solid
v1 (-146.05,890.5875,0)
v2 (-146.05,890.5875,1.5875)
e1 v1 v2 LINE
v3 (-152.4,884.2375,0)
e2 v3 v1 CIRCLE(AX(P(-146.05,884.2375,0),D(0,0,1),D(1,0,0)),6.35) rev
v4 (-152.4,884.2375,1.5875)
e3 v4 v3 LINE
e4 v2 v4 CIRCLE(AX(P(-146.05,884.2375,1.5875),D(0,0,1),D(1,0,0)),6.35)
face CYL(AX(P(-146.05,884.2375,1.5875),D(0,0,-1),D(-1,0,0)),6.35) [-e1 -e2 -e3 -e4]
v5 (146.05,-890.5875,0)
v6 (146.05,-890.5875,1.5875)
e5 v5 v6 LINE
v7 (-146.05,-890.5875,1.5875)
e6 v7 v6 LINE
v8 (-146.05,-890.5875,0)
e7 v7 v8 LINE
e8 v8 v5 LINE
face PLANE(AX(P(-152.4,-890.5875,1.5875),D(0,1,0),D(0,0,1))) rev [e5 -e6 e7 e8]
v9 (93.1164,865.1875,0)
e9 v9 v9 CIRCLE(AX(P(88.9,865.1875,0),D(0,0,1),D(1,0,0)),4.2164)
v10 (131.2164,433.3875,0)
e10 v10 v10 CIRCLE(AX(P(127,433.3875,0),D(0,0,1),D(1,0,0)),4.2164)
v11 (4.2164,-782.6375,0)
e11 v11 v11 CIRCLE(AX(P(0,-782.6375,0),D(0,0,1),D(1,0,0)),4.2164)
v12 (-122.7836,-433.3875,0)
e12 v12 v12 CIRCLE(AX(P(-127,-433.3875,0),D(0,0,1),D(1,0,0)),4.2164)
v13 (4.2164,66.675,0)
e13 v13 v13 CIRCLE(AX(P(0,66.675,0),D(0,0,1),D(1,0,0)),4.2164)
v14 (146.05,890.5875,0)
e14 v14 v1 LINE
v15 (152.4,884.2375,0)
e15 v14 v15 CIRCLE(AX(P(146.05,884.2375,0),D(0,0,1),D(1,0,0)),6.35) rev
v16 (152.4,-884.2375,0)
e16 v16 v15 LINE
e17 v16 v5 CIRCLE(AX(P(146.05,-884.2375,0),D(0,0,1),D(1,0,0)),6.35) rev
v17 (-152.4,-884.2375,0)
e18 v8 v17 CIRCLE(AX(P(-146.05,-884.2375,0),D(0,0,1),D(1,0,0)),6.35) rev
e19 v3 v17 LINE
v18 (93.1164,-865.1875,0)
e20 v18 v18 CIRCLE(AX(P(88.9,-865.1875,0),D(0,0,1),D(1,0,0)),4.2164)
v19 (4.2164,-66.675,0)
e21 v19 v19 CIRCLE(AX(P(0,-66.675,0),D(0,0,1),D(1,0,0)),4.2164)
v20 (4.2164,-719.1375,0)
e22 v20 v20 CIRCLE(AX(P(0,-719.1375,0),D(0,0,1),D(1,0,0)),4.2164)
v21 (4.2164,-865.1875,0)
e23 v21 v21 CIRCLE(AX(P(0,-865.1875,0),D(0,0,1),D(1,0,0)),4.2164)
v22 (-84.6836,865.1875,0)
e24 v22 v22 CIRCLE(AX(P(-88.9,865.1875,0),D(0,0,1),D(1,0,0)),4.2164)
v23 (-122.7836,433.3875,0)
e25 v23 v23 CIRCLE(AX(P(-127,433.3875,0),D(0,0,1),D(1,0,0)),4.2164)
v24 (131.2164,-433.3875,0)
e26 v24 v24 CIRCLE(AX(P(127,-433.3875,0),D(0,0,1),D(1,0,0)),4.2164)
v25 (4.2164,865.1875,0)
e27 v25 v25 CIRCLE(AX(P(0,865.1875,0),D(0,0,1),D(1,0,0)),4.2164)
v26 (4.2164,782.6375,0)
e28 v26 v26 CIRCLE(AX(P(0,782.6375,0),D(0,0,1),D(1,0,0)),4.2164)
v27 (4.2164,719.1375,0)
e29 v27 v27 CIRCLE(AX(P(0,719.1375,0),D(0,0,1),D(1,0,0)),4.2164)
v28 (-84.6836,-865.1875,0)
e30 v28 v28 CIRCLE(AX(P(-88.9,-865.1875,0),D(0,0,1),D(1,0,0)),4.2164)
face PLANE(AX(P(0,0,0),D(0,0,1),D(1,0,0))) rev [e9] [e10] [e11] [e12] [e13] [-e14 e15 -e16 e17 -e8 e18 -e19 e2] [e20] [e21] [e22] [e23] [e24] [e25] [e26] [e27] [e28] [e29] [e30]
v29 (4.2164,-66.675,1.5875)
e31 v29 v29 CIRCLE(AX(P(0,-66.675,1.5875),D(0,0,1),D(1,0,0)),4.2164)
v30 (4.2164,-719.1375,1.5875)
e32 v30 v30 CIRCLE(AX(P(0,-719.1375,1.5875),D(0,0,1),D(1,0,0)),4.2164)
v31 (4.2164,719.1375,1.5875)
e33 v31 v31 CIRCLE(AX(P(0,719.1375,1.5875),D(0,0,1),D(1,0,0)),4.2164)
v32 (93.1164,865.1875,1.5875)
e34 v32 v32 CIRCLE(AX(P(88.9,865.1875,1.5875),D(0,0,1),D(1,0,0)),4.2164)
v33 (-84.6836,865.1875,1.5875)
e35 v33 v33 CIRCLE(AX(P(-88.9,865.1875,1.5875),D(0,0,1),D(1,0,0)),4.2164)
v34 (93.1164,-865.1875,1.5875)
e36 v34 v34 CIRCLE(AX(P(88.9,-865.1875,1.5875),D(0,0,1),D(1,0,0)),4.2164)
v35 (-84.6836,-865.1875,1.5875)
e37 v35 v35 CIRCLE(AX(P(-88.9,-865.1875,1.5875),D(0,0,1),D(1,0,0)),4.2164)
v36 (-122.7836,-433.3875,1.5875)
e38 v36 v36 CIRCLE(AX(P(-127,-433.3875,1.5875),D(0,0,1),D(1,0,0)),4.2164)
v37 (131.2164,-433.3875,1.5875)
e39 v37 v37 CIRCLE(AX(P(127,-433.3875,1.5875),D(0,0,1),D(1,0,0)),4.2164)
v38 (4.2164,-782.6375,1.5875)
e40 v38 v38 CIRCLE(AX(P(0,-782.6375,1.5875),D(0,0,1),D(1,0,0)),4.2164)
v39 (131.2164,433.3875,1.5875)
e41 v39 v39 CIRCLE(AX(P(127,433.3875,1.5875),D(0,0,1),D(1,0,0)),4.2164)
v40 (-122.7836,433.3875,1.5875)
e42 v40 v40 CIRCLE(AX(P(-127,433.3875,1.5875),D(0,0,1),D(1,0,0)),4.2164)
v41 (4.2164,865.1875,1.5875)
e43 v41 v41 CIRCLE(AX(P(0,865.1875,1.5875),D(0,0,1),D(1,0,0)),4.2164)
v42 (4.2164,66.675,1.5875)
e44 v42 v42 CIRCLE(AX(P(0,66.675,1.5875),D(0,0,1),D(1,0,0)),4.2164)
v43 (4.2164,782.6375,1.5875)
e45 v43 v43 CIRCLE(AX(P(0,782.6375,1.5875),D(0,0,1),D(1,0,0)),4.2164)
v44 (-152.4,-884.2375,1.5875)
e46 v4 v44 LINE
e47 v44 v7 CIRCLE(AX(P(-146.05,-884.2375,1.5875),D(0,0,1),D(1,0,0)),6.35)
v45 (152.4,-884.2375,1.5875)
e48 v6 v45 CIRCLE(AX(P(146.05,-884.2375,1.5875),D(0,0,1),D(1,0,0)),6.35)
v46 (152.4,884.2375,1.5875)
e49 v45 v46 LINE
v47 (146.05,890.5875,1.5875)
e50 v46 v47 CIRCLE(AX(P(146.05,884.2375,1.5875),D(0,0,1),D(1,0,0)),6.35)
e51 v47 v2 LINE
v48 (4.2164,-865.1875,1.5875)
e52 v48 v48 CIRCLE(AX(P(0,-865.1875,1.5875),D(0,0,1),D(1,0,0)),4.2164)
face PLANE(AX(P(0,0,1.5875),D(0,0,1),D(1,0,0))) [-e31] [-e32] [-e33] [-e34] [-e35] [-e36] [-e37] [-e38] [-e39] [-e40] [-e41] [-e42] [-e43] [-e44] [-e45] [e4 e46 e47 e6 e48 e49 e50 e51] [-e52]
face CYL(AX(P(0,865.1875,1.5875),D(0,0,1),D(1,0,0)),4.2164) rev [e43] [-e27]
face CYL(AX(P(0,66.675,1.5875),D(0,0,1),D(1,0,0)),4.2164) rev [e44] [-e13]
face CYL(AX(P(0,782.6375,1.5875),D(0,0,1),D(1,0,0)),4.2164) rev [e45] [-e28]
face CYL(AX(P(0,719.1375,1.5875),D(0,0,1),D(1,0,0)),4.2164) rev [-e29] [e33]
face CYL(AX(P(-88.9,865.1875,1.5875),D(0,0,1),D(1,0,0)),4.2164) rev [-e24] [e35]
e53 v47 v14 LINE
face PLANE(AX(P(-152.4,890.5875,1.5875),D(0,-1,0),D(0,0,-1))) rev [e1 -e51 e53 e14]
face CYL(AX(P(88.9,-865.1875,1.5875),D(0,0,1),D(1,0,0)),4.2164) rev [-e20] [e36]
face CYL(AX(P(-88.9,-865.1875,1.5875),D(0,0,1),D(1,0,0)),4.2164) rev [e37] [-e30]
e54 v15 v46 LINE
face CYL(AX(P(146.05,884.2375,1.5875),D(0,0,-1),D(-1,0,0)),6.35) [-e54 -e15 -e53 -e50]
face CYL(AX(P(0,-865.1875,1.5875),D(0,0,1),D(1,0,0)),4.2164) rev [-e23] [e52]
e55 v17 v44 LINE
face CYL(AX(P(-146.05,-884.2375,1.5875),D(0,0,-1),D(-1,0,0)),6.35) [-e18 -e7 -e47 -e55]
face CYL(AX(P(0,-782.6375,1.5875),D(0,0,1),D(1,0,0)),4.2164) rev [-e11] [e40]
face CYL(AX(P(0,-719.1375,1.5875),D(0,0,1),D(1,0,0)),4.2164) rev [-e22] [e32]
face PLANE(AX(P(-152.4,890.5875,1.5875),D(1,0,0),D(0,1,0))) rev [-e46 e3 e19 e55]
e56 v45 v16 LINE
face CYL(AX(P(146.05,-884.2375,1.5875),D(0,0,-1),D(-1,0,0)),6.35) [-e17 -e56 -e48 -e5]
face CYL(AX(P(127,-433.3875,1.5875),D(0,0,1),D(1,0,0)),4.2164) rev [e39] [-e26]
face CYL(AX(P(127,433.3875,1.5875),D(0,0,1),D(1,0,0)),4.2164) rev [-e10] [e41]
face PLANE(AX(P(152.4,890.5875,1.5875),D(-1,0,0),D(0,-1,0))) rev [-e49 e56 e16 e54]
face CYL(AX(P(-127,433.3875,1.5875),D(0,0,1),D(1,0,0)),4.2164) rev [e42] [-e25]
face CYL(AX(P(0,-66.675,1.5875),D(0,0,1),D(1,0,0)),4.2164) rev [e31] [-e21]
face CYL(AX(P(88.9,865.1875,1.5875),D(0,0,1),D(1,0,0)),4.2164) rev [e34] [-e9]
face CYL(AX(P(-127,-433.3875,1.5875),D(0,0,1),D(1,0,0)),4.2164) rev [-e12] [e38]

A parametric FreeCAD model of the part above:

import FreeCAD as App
import Part
import Sketcher
Q = App.Units.Quantity


def edges_at(feature, points):
    """Names of the edges that pass closest to the given points."""
    edges = feature.Shape.Edges
    near = lambda p: min(range(len(edges)), key=lambda i: edges[i].distToShape(Part.Vertex(*p))[0])
    return sorted({f"Edge{near(p) + 1}" for p in points})

doc = App.newDocument("Part")
body = doc.addObject("PartDesign::Body", "Body")

# Sketch on XY plane
sketch1 = doc.addObject("Sketcher::SketchObject", "Sketch")
body.addObject(sketch1)
sketch1.AttachmentSupport = (doc.XY_Plane, [""])
sketch1.MapMode = "FlatFace"
sketch1.addGeometry([
    Part.LineSegment(App.Vector(-152.4, 890.5875, 0), App.Vector(-152.4, -890.5875, 0)),
    Part.LineSegment(App.Vector(-152.4, -890.5875, 0), App.Vector(152.4, -890.5875, 0)),
    Part.LineSegment(App.Vector(152.4, -890.5875, 0), App.Vector(152.4, 890.5875, 0)),
    Part.LineSegment(App.Vector(152.4, 890.5875, 0), App.Vector(-152.4, 890.5875, 0)),
], False)
sketch1.addConstraint([
    Sketcher.Constraint("Coincident", 0, 2, 1, 1),
    Sketcher.Constraint("Coincident", 1, 2, 2, 1),
    Sketcher.Constraint("Coincident", 2, 2, 3, 1),
    Sketcher.Constraint("Coincident", 3, 2, 0, 1),
    Sketcher.Constraint("Vertical", 0),
    Sketcher.Constraint("Horizontal", 1),
    Sketcher.Constraint("Vertical", 2),
    Sketcher.Constraint("Horizontal", 3),
    Sketcher.Constraint("Symmetric", 0, 2, 2, 2, -1, 1),
    Sketcher.Constraint("DistanceX", 1, 1, 1, 2, Q("12 in")),
    Sketcher.Constraint("DistanceY", 0, 2, 0, 1, Q("70.125 in")),
])
pad1 = doc.addObject("PartDesign::Pad", "Pad")
body.addObject(pad1)
pad1.Profile = sketch1
pad1.Length = Q("0.0625 in")

# Sketch on XY plane
sketch2 = doc.addObject("Sketcher::SketchObject", "Sketch001")
body.addObject(sketch2)
sketch2.AttachmentSupport = (doc.XY_Plane, [""])
sketch2.MapMode = "FlatFace"
sketch2.AttachmentOffset = App.Placement(App.Vector(0, 0, 0.0625 * 25.4), App.Rotation())
sketch2.addGeometry([
    Part.Circle(App.Vector(0, 865.1875, 0), App.Vector(0, 0, 1), 4.2164),  # 0
    Part.Circle(App.Vector(-127, 433.3875, 0), App.Vector(0, 0, 1), 4.2164),  # 1
    Part.Circle(App.Vector(127, 433.3875, 0), App.Vector(0, 0, 1), 4.2164),  # 2
    Part.Circle(App.Vector(0, 66.675, 0), App.Vector(0, 0, 1), 4.2164),  # 3
    Part.Circle(App.Vector(0, -66.675, 0), App.Vector(0, 0, 1), 4.2164),  # 4
    Part.Circle(App.Vector(-127, -433.3875, 0), App.Vector(0, 0, 1), 4.2164),  # 5
    Part.Circle(App.Vector(127, -433.3875, 0), App.Vector(0, 0, 1), 4.2164),  # 6
    Part.Circle(App.Vector(0, -865.1875, 0), App.Vector(0, 0, 1), 4.2164),  # 7
    Part.Circle(App.Vector(0, 782.6375, 0), App.Vector(0, 0, 1), 4.2164),  # 8
    Part.Circle(App.Vector(0, 719.1375, 0), App.Vector(0, 0, 1), 4.2164),  # 9
    Part.Circle(App.Vector(0, -782.6375, 0), App.Vector(0, 0, 1), 4.2164),  # 10
    Part.Circle(App.Vector(0, -719.1375, 0), App.Vector(0, 0, 1), 4.2164),  # 11
    Part.Circle(App.Vector(-88.9, 865.1875, 0), App.Vector(0, 0, 1), 4.2164),  # 12
    Part.Circle(App.Vector(88.9, 865.1875, 0), App.Vector(0, 0, 1), 4.2164),  # 13
    Part.Circle(App.Vector(-88.9, -865.1875, 0), App.Vector(0, 0, 1), 4.2164),  # 14
    Part.Circle(App.Vector(88.9, -865.1875, 0), App.Vector(0, 0, 1), 4.2164),  # 15
], False)
sketch2.addConstraint([
    Sketcher.Constraint("Equal", 0, 1),
    Sketcher.Constraint("Equal", 1, 2),
    Sketcher.Constraint("Equal", 2, 3),
    Sketcher.Constraint("Equal", 3, 4),
    Sketcher.Constraint("Equal", 4, 5),
    Sketcher.Constraint("Equal", 5, 6),
    Sketcher.Constraint("Equal", 6, 7),
    Sketcher.Constraint("Equal", 7, 8),
    Sketcher.Constraint("Equal", 8, 9),
    Sketcher.Constraint("Equal", 9, 10),
    Sketcher.Constraint("Equal", 10, 11),
    Sketcher.Constraint("Equal", 11, 12),
    Sketcher.Constraint("Equal", 12, 13),
    Sketcher.Constraint("Equal", 13, 14),
    Sketcher.Constraint("Equal", 14, 15),
    Sketcher.Constraint("Symmetric", 3, 3, 4, 3, -1, 1),
    Sketcher.Constraint("Symmetric", 2, 3, 5, 3, -1, 1),
    Sketcher.Constraint("Symmetric", 1, 3, 6, 3, -1, 1),
    Sketcher.Constraint("Symmetric", 0, 3, 7, 3, -1, 1),
    Sketcher.Constraint("Symmetric", 8, 3, 10, 3, -1, 1),
    Sketcher.Constraint("Symmetric", 9, 3, 11, 3, -1, 1),
    Sketcher.Constraint("Symmetric", 13, 3, 14, 3, -1, 1),
    Sketcher.Constraint("Symmetric", 12, 3, 15, 3, -1, 1),
    Sketcher.Constraint("Symmetric", 1, 3, 2, 3, -2),
    Sketcher.Constraint("Symmetric", 12, 3, 13, 3, -2),
    Sketcher.Constraint("PointOnObject", 0, 3, -2),
    Sketcher.Constraint("PointOnObject", 3, 3, -2),
    Sketcher.Constraint("PointOnObject", 8, 3, -2),
    Sketcher.Constraint("PointOnObject", 9, 3, -2),
    Sketcher.Constraint("Horizontal", 0, 3, 12, 3),
    Sketcher.Constraint("Diameter", 0, Q("0.332 in")),
    Sketcher.Constraint("DistanceX", 1, 3, -1, 1, Q("5 in")),
    Sketcher.Constraint("DistanceY", 1, 3, 0, 3, Q("17 in")),
    Sketcher.Constraint("DistanceX", 12, 3, 13, 3, Q("7 in")),
    Sketcher.Constraint("DistanceY", 9, 3, 8, 3, Q("2.5 in")),
    Sketcher.Constraint("DistanceY", 4, 3, 3, 3, Q("5.25 in")),
    Sketcher.Constraint("DistanceY", 8, 3, 0, 3, Q("3.25 in")),
    Sketcher.Constraint("DistanceY", -1, 1, 0, 3, Q("34.0625 in")),
])
doc.recompute()
hole = doc.addObject("PartDesign::Hole", "Hole")
body.addObject(hole)
hole.Profile = sketch2
hole.ThreadType = "None"
hole.Diameter = Q("0.332 in")
hole.DepthType = "Dimension"
hole.Depth = Q("0.0625 in")
hole.DrillPoint = "Flat"
doc.recompute()

fillet = doc.addObject("PartDesign::Fillet", "Fillet")
body.addObject(fillet)
fillet.Base = (hole, edges_at(hole, [
    (152.4, -890.587, 0.794),
    (-152.4, -890.587, 0.794),
    (-152.4, 890.587, 0.794),
    (152.4, 890.587, 0.794),
]))
fillet.Radius = Q("0.25 in")

doc.recompute()
